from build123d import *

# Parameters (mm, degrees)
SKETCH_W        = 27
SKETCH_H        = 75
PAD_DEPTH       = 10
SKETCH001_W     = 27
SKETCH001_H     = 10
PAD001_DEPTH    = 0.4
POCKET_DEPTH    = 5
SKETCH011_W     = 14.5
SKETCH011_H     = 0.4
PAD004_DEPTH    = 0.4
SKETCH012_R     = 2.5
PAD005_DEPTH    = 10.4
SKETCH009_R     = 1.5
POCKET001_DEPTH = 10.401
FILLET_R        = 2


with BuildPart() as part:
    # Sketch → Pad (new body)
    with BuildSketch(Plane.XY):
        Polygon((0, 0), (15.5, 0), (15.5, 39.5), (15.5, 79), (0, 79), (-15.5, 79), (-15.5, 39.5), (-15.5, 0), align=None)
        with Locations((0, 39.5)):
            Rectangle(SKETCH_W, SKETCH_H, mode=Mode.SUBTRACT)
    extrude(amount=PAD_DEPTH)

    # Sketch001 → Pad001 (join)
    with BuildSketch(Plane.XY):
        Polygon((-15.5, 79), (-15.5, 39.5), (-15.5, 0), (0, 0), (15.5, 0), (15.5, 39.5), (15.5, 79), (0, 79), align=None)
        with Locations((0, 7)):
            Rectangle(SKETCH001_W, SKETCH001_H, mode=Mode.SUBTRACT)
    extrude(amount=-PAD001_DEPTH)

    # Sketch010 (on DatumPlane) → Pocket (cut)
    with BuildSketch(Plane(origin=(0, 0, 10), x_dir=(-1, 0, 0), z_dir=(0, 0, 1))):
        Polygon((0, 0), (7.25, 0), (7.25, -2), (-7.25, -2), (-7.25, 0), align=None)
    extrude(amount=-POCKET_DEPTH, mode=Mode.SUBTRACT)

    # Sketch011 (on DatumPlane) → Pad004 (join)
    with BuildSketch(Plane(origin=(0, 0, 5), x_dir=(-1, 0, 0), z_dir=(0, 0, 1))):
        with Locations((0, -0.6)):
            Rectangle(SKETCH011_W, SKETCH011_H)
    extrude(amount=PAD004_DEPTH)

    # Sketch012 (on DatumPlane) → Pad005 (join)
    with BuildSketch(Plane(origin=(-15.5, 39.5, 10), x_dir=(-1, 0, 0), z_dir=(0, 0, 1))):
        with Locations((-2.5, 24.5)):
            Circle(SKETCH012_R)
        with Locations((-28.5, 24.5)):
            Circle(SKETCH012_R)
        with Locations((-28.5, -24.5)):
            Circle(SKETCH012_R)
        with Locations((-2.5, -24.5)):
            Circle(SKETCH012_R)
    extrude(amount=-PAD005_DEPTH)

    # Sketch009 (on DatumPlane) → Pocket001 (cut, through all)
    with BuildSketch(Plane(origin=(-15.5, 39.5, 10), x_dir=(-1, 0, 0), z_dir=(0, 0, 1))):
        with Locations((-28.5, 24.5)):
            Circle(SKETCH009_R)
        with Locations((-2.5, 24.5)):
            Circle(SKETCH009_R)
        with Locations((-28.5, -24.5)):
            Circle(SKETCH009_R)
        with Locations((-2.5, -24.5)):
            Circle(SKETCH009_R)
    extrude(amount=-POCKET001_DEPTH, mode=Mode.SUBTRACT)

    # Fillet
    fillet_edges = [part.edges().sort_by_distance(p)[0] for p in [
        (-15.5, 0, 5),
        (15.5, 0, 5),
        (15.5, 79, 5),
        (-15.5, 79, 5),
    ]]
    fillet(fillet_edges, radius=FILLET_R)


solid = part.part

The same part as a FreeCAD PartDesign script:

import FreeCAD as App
import Part
import Sketcher
Q = App.Units.Quantity


def edges_at(feature, points):
    """Names of the edges that pass closest to the given points."""
    edges = feature.Shape.Edges
    near = lambda p: min(range(len(edges)), key=lambda i: edges[i].distToShape(Part.Vertex(*p))[0])
    return sorted({f"Edge{near(p) + 1}" for p in points})


def add_polygon(sketch, points):
    """Adds a closed chain of lines whose ends are joined by coincident constraints."""
    first, n = sketch.GeometryCount, len(points)
    for a, b in zip(points, points[1:] + points[:1]):
        sketch.addGeometry(Part.LineSegment(App.Vector(*a, 0), App.Vector(*b, 0)), False)
    for i in range(n):
        sketch.addConstraint(Sketcher.Constraint("Coincident", first + i, 2, first + (i + 1) % n, 1))

doc = App.newDocument("Part")
params = doc.addObject("Spreadsheet::Sheet", "Params")
for row, (alias, value) in enumerate([
    ("sketch1_width", "31 mm"),
    ("sketch1_width2", "27 mm"),
    ("sketch1_height", "79 mm"),
    ("sketch1_height2", "75 mm"),
    ("pad1_length", "10 mm"),
    ("sketch2_width", "31 mm"),
    ("sketch2_width2", "27 mm"),
    ("sketch2_height", "79 mm"),
    ("sketch2_height2", "10 mm"),
    ("pad2_length", "0.4 mm"),
    ("sketch3_height", "2 mm"),
    ("sketch3_width", "14.5 mm"),
    ("pocket1_length", "5 mm"),
    ("sketch4_width", "14.5 mm"),
    ("sketch4_height", "0.4 mm"),
    ("pad3_length", "0.4 mm"),
    ("sketch5_diameter", "5 mm"),
    ("pad4_length", "10.4 mm"),
    ("sketch6_diameter", "3 mm"),
    ("fillet_radius", "2 mm"),
], start=1):
    params.set(f"A{row}", alias)
    params.set(f"B{row}", "=" + value)
    params.setAlias(f"B{row}", alias)

body = doc.addObject("PartDesign::Body", "Body")

# Sketch on XY plane
sketch1 = doc.addObject("Sketcher::SketchObject", "Sketch")
body.addObject(sketch1)
sketch1.AttachmentSupport = (doc.XY_Plane, [""])
sketch1.MapMode = "FlatFace"
add_polygon(sketch1, [(16, 0), (16, 79), (-16, 79), (-16, 0)])  # lines 0-3
add_polygon(sketch1, [(14, 2), (-14, 2), (-14, 77), (14, 77)])  # lines 4-7
sketch1.addConstraint([
    Sketcher.Constraint("Vertical", 0),
    Sketcher.Constraint("Horizontal", 1),
    Sketcher.Constraint("Vertical", 2),
    Sketcher.Constraint("Horizontal", 3),
    Sketcher.Constraint("Horizontal", 4),
    Sketcher.Constraint("Vertical", 5),
    Sketcher.Constraint("Horizontal", 6),
    Sketcher.Constraint("Vertical", 7),
    Sketcher.Constraint("Symmetric", 2, 2, 3, 2, -1, 1),
    Sketcher.Constraint("DistanceX", 1, 2, 1, 1, Q("31 mm")),
    Sketcher.Constraint("DistanceX", 4, 2, 4, 1, Q("27 mm")),
    Sketcher.Constraint("DistanceY", 0, 1, 0, 2, Q("79 mm")),
    Sketcher.Constraint("DistanceY", 5, 1, 5, 2, Q("75 mm")),
    Sketcher.Constraint("DistanceY", -1, 1, 4, 2, Q("2 mm")),
    Sketcher.Constraint("DistanceX", 2, 2, 4, 2, Q("2 mm")),
])
sketch1.setExpression("Constraints[17]", "Params.sketch1_width")
sketch1.setExpression("Constraints[18]", "Params.sketch1_width2")
sketch1.setExpression("Constraints[19]", "Params.sketch1_height")
sketch1.setExpression("Constraints[20]", "Params.sketch1_height2")
pad1 = doc.addObject("PartDesign::Pad", "Pad")
body.addObject(pad1)
pad1.Profile = sketch1
pad1.setExpression("Length", "Params.pad1_length")

# Sketch on XY plane
sketch2 = doc.addObject("Sketcher::SketchObject", "Sketch001")
body.addObject(sketch2)
sketch2.AttachmentSupport = (doc.XY_Plane, [""])
sketch2.MapMode = "FlatFace"
add_polygon(sketch2, [(-16, 79), (-16, 0), (16, 0), (16, 79)])  # lines 0-3
add_polygon(sketch2, [(14, 2), (-14, 2), (-14, 12), (14, 12)])  # lines 4-7
sketch2.addConstraint([
    Sketcher.Constraint("Vertical", 0),
    Sketcher.Constraint("Horizontal", 1),
    Sketcher.Constraint("Vertical", 2),
    Sketcher.Constraint("Horizontal", 3),
    Sketcher.Constraint("Horizontal", 4),
    Sketcher.Constraint("Vertical", 5),
    Sketcher.Constraint("Horizontal", 6),
    Sketcher.Constraint("Vertical", 7),
    Sketcher.Constraint("Symmetric", 0, 2, 1, 2, -1, 1),
    Sketcher.Constraint("DistanceX", 1, 1, 1, 2, Q("31 mm")),
    Sketcher.Constraint("DistanceX", 4, 2, 4, 1, Q("27 mm")),
    Sketcher.Constraint("DistanceY", 0, 2, 0, 1, Q("79 mm")),
    Sketcher.Constraint("DistanceY", 5, 1, 5, 2, Q("10 mm")),
    Sketcher.Constraint("DistanceY", -1, 1, 4, 2, Q("2 mm")),
    Sketcher.Constraint("DistanceX", 0, 2, 4, 2, Q("2 mm")),
])
sketch2.setExpression("Constraints[17]", "Params.sketch2_width")
sketch2.setExpression("Constraints[18]", "Params.sketch2_width2")
sketch2.setExpression("Constraints[19]", "Params.sketch2_height")
sketch2.setExpression("Constraints[20]", "Params.sketch2_height2")
pad2 = doc.addObject("PartDesign::Pad", "Pad001")
body.addObject(pad2)
pad2.Profile = sketch2
pad2.setExpression("Length", "Params.pad2_length")
pad2.Reversed = True

# Sketch on XY plane
sketch3 = doc.addObject("Sketcher::SketchObject", "Sketch002")
body.addObject(sketch3)
sketch3.AttachmentSupport = (doc.XY_Plane, [""])
sketch3.MapMode = "FlatFace"
sketch3.AttachmentOffset = App.Placement(App.Vector(0, 0, 10), App.Rotation())
add_polygon(sketch3, [(-7.2, 0), (7.2, 0), (7.2, 2), (-7.2, 2)])  # lines 0-3
sketch3.addConstraint([
    Sketcher.Constraint("Horizontal", 0),
    Sketcher.Constraint("Vertical", 1),
    Sketcher.Constraint("Horizontal", 2),
    Sketcher.Constraint("Vertical", 3),
    Sketcher.Constraint("Symmetric", 0, 2, 3, 2, -1, 1),
    Sketcher.Constraint("DistanceY", 1, 1, 1, 2, Q("2 mm")),
    Sketcher.Constraint("DistanceX", 0, 1, 0, 2, Q("14.5 mm")),
])
sketch3.setExpression("Constraints[9]", "Params.sketch3_height")
sketch3.setExpression("Constraints[10]", "Params.sketch3_width")
pocket1 = doc.addObject("PartDesign::Pocket", "Pocket")
body.addObject(pocket1)
pocket1.Profile = sketch3
pocket1.setExpression("Length", "Params.pocket1_length")

# Sketch on XY plane
sketch4 = doc.addObject("Sketcher::SketchObject", "Sketch003")
body.addObject(sketch4)
sketch4.AttachmentSupport = (doc.XY_Plane, [""])
sketch4.MapMode = "FlatFace"
sketch4.AttachmentOffset = App.Placement(App.Vector(0, 0, 5), App.Rotation())
add_polygon(sketch4, [(7.25, 0.4), (7.25, 0.8), (-7.25, 0.8), (-7.25, 0.4)])  # lines 0-3
sketch4.addConstraint([
    Sketcher.Constraint("Vertical", 0),
    Sketcher.Constraint("Horizontal", 1),
    Sketcher.Constraint("Vertical", 2),
    Sketcher.Constraint("Horizontal", 3),
    Sketcher.Constraint("DistanceX", 1, 2, 1, 1, Q("14.5 mm")),
    Sketcher.Constraint("DistanceY", 0, 1, 0, 2, Q("0.4 mm")),
    Sketcher.Constraint("DistanceY", -1, 1, 0, 2, Q("0.8 mm")),
    Sketcher.Constraint("DistanceX", -1, 1, 0, 2, Q("7.25 mm")),
])
sketch4.setExpression("Constraints[8]", "Params.sketch4_width")
sketch4.setExpression("Constraints[9]", "Params.sketch4_height")
pad3 = doc.addObject("PartDesign::Pad", "Pad002")
body.addObject(pad3)
pad3.Profile = sketch4
pad3.setExpression("Length", "Params.pad3_length")

# Sketch on XY plane
sketch5 = doc.addObject("Sketcher::SketchObject", "Sketch004")
body.addObject(sketch5)
sketch5.AttachmentSupport = (doc.XY_Plane, [""])
sketch5.MapMode = "FlatFace"
sketch5.AttachmentOffset = App.Placement(App.Vector(0, 0, 10), App.Rotation())
sketch5.addGeometry([
    Part.Circle(App.Vector(-13, 15, 0), App.Vector(0, 0, 1), 2.5),
    Part.Circle(App.Vector(13, 15, 0), App.Vector(0, 0, 1), 2.5),
    Part.Circle(App.Vector(13, 64, 0), App.Vector(0, 0, 1), 2.5),
    Part.Circle(App.Vector(-13, 64, 0), App.Vector(0, 0, 1), 2.5),
], False)
sketch5.addConstraint([
    Sketcher.Constraint("Equal", 0, 1),
    Sketcher.Constraint("Equal", 1, 2),
    Sketcher.Constraint("Equal", 2, 3),
    Sketcher.Constraint("Symmetric", 0, 3, 1, 3, -2),
    Sketcher.Constraint("Symmetric", 2, 3, 3, 3, -2),
    Sketcher.Constraint("Vertical", 1, 3, 2, 3),
    Sketcher.Constraint("Diameter", 0, Q("5 mm")),
    Sketcher.Constraint("DistanceX", 0, 3, -1, 1, Q("13 mm")),
    Sketcher.Constraint("DistanceY", -1, 1, 0, 3, Q("15 mm")),
    Sketcher.Constraint("DistanceY", -1, 1, 2, 3, Q("64 mm")),
])
sketch5.setExpression("Constraints[6]", "Params.sketch5_diameter")
pad4 = doc.addObject("PartDesign::Pad", "Pad003")
body.addObject(pad4)
pad4.Profile = sketch5
pad4.setExpression("Length", "Params.pad4_length")
pad4.Reversed = True

# Sketch on XY plane
sketch6 = doc.addObject("Sketcher::SketchObject", "Sketch005")
body.addObject(sketch6)
sketch6.AttachmentSupport = (doc.XY_Plane, [""])
sketch6.MapMode = "FlatFace"
sketch6.AttachmentOffset = App.Placement(App.Vector(0, 0, 10), App.Rotation())
sketch6.addGeometry([
    Part.Circle(App.Vector(13, 15, 0), App.Vector(0, 0, 1), 1.5),
    Part.Circle(App.Vector(-13, 15, 0), App.Vector(0, 0, 1), 1.5),
    Part.Circle(App.Vector(13, 64, 0), App.Vector(0, 0, 1), 1.5),
    Part.Circle(App.Vector(-13, 64, 0), App.Vector(0, 0, 1), 1.5),
], False)
sketch6.addConstraint([
    Sketcher.Constraint("Equal", 0, 1),
    Sketcher.Constraint("Equal", 1, 2),
    Sketcher.Constraint("Equal", 2, 3),
    Sketcher.Constraint("Symmetric", 0, 3, 1, 3, -2),
    Sketcher.Constraint("Symmetric", 2, 3, 3, 3, -2),
    Sketcher.Constraint("Vertical", 0, 3, 2, 3),
    Sketcher.Constraint("Diameter", 0, Q("3 mm")),
    Sketcher.Constraint("DistanceX", -1, 1, 0, 3, Q("13 mm")),
    Sketcher.Constraint("DistanceY", -1, 1, 0, 3, Q("15 mm")),
    Sketcher.Constraint("DistanceY", -1, 1, 2, 3, Q("64 mm")),
])
sketch6.setExpression("Constraints[6]", "Params.sketch6_diameter")
pocket2 = doc.addObject("PartDesign::Pocket", "Pocket001")
body.addObject(pocket2)
pocket2.Profile = sketch6
pocket2.Type = "ThroughAll"
doc.recompute()

fillet = doc.addObject("PartDesign::Fillet", "Fillet")
body.addObject(fillet)
fillet.Base = (pocket2, edges_at(pocket2, [
    (-15.5, 0, 4.8),
    (15.5, 0, 4.8),
    (15.5, 79, 4.8),
    (-15.5, 79, 4.8),
]))
fillet.setExpression("Radius", "Params.fillet_radius")

doc.recompute()
